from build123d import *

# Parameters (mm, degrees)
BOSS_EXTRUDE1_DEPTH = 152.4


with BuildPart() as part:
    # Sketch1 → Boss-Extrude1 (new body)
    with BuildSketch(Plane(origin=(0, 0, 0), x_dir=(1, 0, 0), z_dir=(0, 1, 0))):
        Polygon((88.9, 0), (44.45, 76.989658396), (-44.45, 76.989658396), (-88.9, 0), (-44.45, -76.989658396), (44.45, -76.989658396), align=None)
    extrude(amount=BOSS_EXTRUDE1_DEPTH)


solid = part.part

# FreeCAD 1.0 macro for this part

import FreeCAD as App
import Part
import Sketcher
from FreeCAD import Vector
Q = App.Units.Quantity


def add_polygon(sketch, points):
    """Adds a closed chain of lines whose ends are joined by coincident constraints."""
    first, n = sketch.GeometryCount, len(points)
    for a, b in zip(points, points[1:] + points[:1]):
        sketch.addGeometry(Part.LineSegment(App.Vector(*a, 0), App.Vector(*b, 0)), False)
    for i in range(n):
        sketch.addConstraint(Sketcher.Constraint("Coincident", first + i, 2, first + (i + 1) % n, 1))

doc = App.newDocument("Part")
body = doc.addObject("PartDesign::Body", "Body")

# Sketch on XZ plane
sketch1 = doc.addObject("Sketcher::SketchObject", "Sketch")
body.addObject(sketch1)
sketch1.AttachmentSupport = (doc.XZ_Plane, [""])
sketch1.MapMode = "FlatFace"
add_polygon(sketch1, [(89, 0), (44, -77), (-44, -77), (-89, 0), (-44, 77), (44, 77)])  # lines 0-5
sketch1.addConstraint(Sketcher.Constraint("Horizontal", 1))
sketch1.addConstraint(Sketcher.Constraint("Horizontal", 4))
sketch1.addConstraint(Sketcher.Constraint("Symmetric", 0, 2, 3, 2, -1, 1))
sketch1.addConstraint(Sketcher.Constraint("Symmetric", 2, 2, 5, 2, -1, 1))
sketch1.addConstraint(Sketcher.Constraint("PointOnObject", 2, 2, -1))
sketch1.addConstraint(Sketcher.Constraint("Parallel", 2, 5))
sketch1.addConstraint(Sketcher.Constraint("Vertical", 1, 2, 3, 2))
sketch1.addConstraint(Sketcher.Constraint("DistanceX", 1, 2, 1, 1, Q("3.5 in")))
sketch1.addConstraint(Sketcher.Constraint("Angle", 0, Q("-120 deg")))
sketch1.addConstraint(Sketcher.Constraint("DistanceX", 2, 2, 5, 2, Q("7 in")))
pad1 = doc.addObject("PartDesign::Pad", "Pad")
body.addObject(pad1)
pad1.Profile = sketch1
pad1.Length = Q("6 in")
pad1.Reversed = True

doc.recompute()
